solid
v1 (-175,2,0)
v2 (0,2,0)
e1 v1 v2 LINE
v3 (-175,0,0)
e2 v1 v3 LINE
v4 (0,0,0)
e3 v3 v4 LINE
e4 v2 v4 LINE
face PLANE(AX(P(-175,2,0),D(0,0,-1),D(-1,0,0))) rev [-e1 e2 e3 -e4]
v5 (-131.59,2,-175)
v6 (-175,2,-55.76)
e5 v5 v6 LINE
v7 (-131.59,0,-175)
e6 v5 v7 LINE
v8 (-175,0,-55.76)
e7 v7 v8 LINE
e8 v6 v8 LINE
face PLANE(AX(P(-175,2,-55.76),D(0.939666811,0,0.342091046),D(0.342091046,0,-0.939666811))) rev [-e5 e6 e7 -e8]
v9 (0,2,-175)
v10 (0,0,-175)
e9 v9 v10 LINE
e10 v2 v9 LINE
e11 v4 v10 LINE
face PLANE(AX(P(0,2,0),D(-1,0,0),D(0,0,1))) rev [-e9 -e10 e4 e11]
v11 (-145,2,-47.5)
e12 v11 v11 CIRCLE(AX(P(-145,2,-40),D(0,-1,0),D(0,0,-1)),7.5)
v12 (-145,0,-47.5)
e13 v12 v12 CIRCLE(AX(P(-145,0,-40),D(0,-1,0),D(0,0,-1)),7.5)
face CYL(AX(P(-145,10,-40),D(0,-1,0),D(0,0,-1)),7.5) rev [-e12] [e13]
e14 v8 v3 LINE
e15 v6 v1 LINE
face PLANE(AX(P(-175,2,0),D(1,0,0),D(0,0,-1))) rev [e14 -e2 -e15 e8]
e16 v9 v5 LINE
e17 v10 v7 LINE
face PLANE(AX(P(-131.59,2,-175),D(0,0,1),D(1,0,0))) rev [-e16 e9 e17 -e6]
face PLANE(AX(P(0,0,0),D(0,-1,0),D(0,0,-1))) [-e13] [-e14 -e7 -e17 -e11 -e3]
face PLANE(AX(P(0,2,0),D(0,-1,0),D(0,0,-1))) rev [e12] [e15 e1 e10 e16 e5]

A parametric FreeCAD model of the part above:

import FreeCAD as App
import Part
import Sketcher
Q = App.Units.Quantity

doc = App.newDocument("Part")
body = doc.addObject("PartDesign::Body", "Body")

# Sketch on XZ plane
sketch1 = body.newObject("Sketcher::SketchObject", "Sketch")
sketch1.AttachmentSupport = (doc.getObject("XZ_Plane"), [""])
sketch1.MapMode = "FlatFace"
sketch1.addGeometry(Part.LineSegment(App.Vector(-132, -175, 0), App.Vector(-175, -56, 0)), False)
sketch1.addGeometry(Part.LineSegment(App.Vector(-175, -56, 0), App.Vector(-175, 0, 0)), False)
sketch1.addGeometry(Part.LineSegment(App.Vector(-175, 0, 0), App.Vector(0, 0, 0)), False)
sketch1.addGeometry(Part.LineSegment(App.Vector(0, 0, 0), App.Vector(0, -175, 0)), False)
sketch1.addGeometry(Part.LineSegment(App.Vector(0, -175, 0), App.Vector(-132, -175, 0)), False)
sketch1.addConstraint(Sketcher.Constraint("Coincident", 0, 2, 1, 1))
sketch1.addConstraint(Sketcher.Constraint("Coincident", 1, 2, 2, 1))
sketch1.addConstraint(Sketcher.Constraint("Coincident", 2, 2, 3, 1))
sketch1.addConstraint(Sketcher.Constraint("Coincident", 3, 2, 4, 1))
sketch1.addConstraint(Sketcher.Constraint("Coincident", 4, 2, 0, 1))
sketch1.addConstraint(Sketcher.Constraint("Vertical", 1))
sketch1.addConstraint(Sketcher.Constraint("Horizontal", 2))
sketch1.addConstraint(Sketcher.Constraint("Vertical", 3))
sketch1.addConstraint(Sketcher.Constraint("Horizontal", 4))
sketch1.addConstraint(Sketcher.Constraint("Coincident", 2, 2, -1, 1))
sketch1.addConstraint(Sketcher.Constraint("Equal", 2, 3))
sketch1.addConstraint(Sketcher.Constraint("DistanceX", 2, 1, 2, 2, Q("175 mm")))
sketch1.addConstraint(Sketcher.Constraint("DistanceX", 4, 2, 4, 1, Q("131.59 mm")))
sketch1.addConstraint(Sketcher.Constraint("DistanceY", 1, 1, 1, 2, Q("55.76 mm")))
pad1 = body.newObject("PartDesign::Pad", "Pad")
pad1.Profile = sketch1
pad1.Length = 2
pad1.Reversed = True

# Sketch on XZ plane
sketch2 = body.newObject("Sketcher::SketchObject", "Sketch001")
sketch2.AttachmentSupport = (doc.getObject("XZ_Plane"), [""])
sketch2.MapMode = "FlatFace"
sketch2.addGeometry(Part.Circle(App.Vector(-145, -40, 0), App.Vector(0, 0, 1), 8), False)
sketch2.addConstraint(Sketcher.Constraint("Diameter", 0, Q("15 mm")))
sketch2.addConstraint(Sketcher.Constraint("DistanceX", 0, 3, -1, 1, Q("145 mm")))
sketch2.addConstraint(Sketcher.Constraint("DistanceY", 0, 3, -1, 1, Q("40 mm")))
pocket1 = body.newObject("PartDesign::Pocket", "Pocket")
pocket1.Profile = sketch2
pocket1.Length = 10

doc.recompute()
